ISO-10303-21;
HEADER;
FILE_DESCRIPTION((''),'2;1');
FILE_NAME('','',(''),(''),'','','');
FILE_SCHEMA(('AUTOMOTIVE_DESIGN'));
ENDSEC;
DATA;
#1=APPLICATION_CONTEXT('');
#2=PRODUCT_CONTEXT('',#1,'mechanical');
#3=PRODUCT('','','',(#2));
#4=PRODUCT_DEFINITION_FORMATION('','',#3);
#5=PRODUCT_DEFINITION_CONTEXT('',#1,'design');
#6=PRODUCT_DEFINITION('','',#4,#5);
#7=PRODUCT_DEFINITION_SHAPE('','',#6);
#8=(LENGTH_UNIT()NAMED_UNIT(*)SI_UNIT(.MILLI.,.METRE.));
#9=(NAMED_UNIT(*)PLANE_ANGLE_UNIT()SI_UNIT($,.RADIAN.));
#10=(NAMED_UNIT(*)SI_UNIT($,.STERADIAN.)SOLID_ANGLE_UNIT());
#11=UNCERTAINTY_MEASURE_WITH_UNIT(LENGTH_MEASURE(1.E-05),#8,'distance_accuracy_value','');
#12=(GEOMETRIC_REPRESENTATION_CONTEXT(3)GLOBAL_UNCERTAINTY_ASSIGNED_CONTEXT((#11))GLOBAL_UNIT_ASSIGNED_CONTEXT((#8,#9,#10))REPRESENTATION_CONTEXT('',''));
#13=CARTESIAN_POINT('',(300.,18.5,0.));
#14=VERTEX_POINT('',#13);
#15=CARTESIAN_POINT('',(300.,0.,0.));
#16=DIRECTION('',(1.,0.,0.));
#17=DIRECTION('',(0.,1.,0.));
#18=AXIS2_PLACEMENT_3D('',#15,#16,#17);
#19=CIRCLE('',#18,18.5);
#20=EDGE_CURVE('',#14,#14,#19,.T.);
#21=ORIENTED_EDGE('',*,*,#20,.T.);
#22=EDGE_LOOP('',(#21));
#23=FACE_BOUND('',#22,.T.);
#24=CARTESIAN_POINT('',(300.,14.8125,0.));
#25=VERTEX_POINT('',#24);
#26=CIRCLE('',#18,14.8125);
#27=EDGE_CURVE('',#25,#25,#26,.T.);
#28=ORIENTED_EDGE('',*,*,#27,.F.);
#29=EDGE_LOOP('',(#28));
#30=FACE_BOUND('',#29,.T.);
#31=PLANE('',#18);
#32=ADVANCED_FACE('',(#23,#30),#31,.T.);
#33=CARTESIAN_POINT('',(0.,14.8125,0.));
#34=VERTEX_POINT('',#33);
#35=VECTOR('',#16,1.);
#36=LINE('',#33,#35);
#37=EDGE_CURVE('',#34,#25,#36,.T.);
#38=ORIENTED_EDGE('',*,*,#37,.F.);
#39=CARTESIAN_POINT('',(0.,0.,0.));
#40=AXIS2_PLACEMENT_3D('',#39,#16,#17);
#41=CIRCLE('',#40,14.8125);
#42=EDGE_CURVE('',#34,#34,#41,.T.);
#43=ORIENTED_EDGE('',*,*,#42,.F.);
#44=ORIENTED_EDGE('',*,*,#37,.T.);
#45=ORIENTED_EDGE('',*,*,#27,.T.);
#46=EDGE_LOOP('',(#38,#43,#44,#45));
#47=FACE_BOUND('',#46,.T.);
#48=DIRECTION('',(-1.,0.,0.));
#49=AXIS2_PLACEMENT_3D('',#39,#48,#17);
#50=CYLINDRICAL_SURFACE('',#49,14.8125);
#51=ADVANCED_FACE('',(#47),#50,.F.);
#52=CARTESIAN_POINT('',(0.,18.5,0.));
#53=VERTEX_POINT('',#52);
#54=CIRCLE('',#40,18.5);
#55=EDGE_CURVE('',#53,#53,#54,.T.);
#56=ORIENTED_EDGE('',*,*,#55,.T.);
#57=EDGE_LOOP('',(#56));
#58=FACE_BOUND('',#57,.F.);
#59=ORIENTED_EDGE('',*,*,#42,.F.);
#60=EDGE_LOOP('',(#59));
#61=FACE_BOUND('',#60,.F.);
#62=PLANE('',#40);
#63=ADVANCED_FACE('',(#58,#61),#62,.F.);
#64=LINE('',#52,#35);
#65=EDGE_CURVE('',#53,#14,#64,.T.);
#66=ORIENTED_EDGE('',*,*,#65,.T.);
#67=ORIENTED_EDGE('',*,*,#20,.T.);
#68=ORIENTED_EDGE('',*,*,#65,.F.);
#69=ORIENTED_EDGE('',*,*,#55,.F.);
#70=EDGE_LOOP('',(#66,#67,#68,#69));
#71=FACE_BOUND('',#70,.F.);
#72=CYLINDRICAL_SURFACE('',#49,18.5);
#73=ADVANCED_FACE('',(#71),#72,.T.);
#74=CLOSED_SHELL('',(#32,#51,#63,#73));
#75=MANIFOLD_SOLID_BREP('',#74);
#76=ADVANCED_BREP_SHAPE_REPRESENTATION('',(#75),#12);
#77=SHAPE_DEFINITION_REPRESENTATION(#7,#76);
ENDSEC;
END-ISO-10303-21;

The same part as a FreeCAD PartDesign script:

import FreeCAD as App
import Part
import Sketcher

V = App.Vector

doc = App.newDocument("Part")
body = doc.addObject("PartDesign::Body", "Body")

# Sketch on YZ plane
sketch1 = doc.addObject("Sketcher::SketchObject", "Sketch")
body.addObject(sketch1)
sketch1.AttachmentSupport = (doc.YZ_Plane, [""])
sketch1.MapMode = "FlatFace"
sketch1.addGeometry([
    Part.Circle(V(0, 0, 0), V(0, 0, 1), 18),
    Part.Circle(V(0, 0, 0), V(0, 0, 1), 15),
], False)
sketch1.addConstraint([
    Sketcher.Constraint("Coincident", 0, 3, -1, 1),
    Sketcher.Constraint("Coincident", 1, 3, -1, 1),
    Sketcher.Constraint("Diameter", 0, 37.0),
    Sketcher.Constraint("Diameter", 1, 29.625),
])
pad1 = doc.addObject("PartDesign::Pad", "Pad")
body.addObject(pad1)
pad1.Profile = sketch1
pad1.Length = 300

doc.recompute()
